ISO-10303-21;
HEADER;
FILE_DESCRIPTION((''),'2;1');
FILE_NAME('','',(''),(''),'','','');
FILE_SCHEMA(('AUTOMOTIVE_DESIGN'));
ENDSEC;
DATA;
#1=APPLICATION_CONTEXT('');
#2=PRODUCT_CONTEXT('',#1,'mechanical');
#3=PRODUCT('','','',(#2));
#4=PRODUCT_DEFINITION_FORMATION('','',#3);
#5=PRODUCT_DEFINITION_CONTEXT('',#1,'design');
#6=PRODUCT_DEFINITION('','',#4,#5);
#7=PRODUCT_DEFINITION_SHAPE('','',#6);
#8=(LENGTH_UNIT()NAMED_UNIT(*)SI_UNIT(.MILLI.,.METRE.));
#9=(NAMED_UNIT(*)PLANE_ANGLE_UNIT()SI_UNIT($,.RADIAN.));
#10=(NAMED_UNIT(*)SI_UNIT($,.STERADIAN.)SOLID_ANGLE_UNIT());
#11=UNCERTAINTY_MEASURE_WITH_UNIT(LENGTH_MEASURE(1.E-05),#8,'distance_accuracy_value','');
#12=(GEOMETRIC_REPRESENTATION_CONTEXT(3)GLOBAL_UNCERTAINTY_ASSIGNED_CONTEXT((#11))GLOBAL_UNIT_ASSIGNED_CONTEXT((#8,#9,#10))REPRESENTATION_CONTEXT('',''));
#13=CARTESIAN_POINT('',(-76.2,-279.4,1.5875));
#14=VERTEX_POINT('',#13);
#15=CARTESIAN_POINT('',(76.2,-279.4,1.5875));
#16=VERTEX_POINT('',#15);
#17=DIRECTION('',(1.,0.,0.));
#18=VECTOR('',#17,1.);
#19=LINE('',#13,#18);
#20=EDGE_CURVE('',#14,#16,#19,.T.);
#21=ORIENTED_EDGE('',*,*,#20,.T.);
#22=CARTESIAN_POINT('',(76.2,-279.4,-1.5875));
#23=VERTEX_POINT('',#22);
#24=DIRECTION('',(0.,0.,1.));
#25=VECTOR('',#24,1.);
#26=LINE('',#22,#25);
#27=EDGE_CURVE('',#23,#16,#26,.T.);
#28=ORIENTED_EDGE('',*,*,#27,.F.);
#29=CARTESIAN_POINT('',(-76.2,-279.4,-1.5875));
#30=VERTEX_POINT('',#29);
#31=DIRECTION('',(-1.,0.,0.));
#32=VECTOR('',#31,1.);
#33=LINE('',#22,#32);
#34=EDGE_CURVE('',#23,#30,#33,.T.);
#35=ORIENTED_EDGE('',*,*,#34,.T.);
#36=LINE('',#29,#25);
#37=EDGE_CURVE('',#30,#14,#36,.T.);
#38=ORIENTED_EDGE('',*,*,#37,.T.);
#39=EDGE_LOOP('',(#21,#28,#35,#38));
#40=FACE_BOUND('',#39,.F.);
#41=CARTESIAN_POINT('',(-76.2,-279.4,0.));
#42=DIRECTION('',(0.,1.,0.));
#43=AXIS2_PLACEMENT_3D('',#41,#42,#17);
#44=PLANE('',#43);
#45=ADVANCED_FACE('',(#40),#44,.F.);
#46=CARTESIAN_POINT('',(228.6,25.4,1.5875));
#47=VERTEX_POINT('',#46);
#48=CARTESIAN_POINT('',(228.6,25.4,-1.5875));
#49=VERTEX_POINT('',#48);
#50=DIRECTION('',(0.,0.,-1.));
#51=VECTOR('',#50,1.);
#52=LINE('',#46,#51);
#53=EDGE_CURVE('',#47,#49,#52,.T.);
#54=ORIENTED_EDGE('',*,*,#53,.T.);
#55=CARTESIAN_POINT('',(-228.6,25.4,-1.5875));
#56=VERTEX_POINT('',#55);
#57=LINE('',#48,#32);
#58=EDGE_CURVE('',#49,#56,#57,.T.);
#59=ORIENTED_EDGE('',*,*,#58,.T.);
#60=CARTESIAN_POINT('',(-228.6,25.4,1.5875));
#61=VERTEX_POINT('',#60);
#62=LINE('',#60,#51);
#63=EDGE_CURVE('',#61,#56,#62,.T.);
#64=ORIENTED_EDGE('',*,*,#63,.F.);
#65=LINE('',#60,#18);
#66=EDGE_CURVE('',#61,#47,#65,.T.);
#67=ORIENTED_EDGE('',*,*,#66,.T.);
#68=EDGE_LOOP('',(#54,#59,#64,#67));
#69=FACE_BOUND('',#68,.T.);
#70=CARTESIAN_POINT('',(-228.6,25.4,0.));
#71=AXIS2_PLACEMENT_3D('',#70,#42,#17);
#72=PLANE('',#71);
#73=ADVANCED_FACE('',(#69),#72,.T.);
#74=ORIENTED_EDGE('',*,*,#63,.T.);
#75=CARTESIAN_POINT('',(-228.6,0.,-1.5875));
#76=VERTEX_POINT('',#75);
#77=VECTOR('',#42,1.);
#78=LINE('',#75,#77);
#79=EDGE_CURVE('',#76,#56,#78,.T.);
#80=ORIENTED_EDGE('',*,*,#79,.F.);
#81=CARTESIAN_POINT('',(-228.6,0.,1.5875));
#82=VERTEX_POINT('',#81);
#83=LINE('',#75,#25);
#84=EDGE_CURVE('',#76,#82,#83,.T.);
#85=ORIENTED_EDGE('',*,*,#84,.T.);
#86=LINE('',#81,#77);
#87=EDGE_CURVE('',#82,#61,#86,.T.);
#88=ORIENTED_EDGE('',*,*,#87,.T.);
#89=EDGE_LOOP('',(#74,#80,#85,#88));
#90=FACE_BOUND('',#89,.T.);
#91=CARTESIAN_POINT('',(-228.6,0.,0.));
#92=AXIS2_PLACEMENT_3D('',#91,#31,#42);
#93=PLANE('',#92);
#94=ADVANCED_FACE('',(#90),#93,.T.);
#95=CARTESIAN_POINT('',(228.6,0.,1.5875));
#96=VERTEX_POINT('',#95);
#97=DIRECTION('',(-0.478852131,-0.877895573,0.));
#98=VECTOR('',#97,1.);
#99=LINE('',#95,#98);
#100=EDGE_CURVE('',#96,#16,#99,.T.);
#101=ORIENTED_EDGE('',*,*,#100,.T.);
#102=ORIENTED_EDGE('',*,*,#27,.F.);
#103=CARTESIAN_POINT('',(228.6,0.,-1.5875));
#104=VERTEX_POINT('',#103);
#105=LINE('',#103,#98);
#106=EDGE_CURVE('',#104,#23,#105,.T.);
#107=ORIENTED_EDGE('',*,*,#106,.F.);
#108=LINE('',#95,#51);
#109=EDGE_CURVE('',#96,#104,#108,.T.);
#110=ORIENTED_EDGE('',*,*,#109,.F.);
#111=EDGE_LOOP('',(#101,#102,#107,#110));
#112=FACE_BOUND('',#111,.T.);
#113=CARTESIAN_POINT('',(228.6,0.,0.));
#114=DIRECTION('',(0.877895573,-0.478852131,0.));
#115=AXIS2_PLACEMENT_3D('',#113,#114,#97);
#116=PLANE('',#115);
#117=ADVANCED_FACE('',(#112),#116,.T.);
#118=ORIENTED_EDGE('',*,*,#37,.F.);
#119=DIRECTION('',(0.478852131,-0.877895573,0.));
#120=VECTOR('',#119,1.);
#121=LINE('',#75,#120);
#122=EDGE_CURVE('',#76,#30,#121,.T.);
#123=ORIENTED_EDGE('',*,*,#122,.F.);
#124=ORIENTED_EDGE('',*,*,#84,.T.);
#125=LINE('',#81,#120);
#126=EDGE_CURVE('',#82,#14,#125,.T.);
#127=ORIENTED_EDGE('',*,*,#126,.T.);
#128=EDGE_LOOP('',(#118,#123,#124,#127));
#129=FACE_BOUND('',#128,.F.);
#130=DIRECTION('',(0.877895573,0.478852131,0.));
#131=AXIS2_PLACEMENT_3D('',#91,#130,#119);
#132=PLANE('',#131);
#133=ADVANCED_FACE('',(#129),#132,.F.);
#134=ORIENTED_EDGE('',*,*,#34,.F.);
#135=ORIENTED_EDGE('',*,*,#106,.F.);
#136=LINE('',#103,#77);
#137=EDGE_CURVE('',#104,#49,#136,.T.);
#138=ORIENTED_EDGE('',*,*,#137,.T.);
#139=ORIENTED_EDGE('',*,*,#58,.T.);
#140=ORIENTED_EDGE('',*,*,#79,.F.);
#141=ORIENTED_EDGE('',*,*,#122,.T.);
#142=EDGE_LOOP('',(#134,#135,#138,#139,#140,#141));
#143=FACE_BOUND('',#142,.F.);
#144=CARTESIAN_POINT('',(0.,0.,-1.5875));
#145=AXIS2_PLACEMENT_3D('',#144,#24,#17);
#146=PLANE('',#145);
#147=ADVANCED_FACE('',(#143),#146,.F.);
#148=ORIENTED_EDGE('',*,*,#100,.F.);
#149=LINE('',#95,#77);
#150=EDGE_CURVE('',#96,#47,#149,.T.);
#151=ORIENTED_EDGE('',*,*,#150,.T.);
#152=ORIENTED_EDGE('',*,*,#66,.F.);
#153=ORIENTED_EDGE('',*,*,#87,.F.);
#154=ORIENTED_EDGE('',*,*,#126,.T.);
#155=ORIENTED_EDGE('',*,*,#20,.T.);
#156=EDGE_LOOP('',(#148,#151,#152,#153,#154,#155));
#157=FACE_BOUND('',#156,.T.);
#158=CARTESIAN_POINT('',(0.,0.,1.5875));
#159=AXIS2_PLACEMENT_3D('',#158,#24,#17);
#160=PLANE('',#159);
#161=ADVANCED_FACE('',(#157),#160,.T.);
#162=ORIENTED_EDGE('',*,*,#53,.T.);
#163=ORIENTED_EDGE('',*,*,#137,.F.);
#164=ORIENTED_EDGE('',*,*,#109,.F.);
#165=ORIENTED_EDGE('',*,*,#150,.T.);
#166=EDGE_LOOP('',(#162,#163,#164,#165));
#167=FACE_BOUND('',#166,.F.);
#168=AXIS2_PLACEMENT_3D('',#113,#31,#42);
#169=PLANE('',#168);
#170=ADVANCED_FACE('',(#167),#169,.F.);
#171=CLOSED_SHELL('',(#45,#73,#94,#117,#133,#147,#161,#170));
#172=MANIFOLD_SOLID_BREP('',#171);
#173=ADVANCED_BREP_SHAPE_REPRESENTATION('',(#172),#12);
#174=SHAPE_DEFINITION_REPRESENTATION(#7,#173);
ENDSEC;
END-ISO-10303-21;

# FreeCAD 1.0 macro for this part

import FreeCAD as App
import Part
import Sketcher

V = App.Vector
Q = App.Units.Quantity


def add_polygon(sketch, points):
    """Adds a closed chain of lines whose ends are joined by coincident constraints."""
    first, n = sketch.GeometryCount, len(points)
    for a, b in zip(points, points[1:] + points[:1]):
        sketch.addGeometry(Part.LineSegment(App.Vector(*a, 0), App.Vector(*b, 0)), False)
    for i in range(n):
        sketch.addConstraint(Sketcher.Constraint("Coincident", first + i, 2, first + (i + 1) % n, 1))

doc = App.newDocument("Part")
params = doc.addObject("Spreadsheet::Sheet", "Params")
for row, (alias, value) in enumerate([
    ("sketch1_width", "6 in"),
    ("sketch1_width2", "18 in"),
    ("sketch1_height", "1 in"),
    ("pad1_length", "0.125 in"),
], start=1):
    params.set(f"A{row}", alias)
    params.set(f"B{row}", "=" + value)
    params.setAlias(f"B{row}", alias)

body = doc.addObject("PartDesign::Body", "Body")

# Sketch on XY plane
sketch1 = body.newObject("Sketcher::SketchObject", "Sketch")
sketch1.AttachmentSupport = (doc.getObject("XY_Plane"), [""])
sketch1.MapMode = "FlatFace"
add_polygon(sketch1, [(-229, 25), (-229, 0), (-76, -279), (76, -279), (229, 0), (229, 25)])  # lines 0-5
sketch1.addConstraint([
    Sketcher.Constraint("Vertical", 0),
    Sketcher.Constraint("Horizontal", 2),
    Sketcher.Constraint("Vertical", 4),
    Sketcher.Constraint("Horizontal", 5),
    Sketcher.Constraint("Symmetric", 0, 2, 3, 2, -1, 1),
    Sketcher.Constraint("PointOnObject", 0, 2, -1),
    Sketcher.Constraint("Equal", 1, 3),
    Sketcher.Constraint("DistanceX", 2, 1, 2, 2, Q("6 in")),
    Sketcher.Constraint("DistanceX", 5, 2, 5, 1, Q("18 in")),
    Sketcher.Constraint("DistanceY", 0, 2, 0, 1, Q("1 in")),
    Sketcher.Constraint("DistanceY", 2, 2, 4, 2, Q("12 in")),
])
sketch1.setExpression("Constraints[13]", "Params.sketch1_width")
sketch1.setExpression("Constraints[14]", "Params.sketch1_width2")
sketch1.setExpression("Constraints[15]", "Params.sketch1_height")
pad1 = body.newObject("PartDesign::Pad", "Pad")
pad1.Profile = sketch1
pad1.setExpression("Length", "Params.pad1_length")
pad1.Midplane = True

doc.recompute()
